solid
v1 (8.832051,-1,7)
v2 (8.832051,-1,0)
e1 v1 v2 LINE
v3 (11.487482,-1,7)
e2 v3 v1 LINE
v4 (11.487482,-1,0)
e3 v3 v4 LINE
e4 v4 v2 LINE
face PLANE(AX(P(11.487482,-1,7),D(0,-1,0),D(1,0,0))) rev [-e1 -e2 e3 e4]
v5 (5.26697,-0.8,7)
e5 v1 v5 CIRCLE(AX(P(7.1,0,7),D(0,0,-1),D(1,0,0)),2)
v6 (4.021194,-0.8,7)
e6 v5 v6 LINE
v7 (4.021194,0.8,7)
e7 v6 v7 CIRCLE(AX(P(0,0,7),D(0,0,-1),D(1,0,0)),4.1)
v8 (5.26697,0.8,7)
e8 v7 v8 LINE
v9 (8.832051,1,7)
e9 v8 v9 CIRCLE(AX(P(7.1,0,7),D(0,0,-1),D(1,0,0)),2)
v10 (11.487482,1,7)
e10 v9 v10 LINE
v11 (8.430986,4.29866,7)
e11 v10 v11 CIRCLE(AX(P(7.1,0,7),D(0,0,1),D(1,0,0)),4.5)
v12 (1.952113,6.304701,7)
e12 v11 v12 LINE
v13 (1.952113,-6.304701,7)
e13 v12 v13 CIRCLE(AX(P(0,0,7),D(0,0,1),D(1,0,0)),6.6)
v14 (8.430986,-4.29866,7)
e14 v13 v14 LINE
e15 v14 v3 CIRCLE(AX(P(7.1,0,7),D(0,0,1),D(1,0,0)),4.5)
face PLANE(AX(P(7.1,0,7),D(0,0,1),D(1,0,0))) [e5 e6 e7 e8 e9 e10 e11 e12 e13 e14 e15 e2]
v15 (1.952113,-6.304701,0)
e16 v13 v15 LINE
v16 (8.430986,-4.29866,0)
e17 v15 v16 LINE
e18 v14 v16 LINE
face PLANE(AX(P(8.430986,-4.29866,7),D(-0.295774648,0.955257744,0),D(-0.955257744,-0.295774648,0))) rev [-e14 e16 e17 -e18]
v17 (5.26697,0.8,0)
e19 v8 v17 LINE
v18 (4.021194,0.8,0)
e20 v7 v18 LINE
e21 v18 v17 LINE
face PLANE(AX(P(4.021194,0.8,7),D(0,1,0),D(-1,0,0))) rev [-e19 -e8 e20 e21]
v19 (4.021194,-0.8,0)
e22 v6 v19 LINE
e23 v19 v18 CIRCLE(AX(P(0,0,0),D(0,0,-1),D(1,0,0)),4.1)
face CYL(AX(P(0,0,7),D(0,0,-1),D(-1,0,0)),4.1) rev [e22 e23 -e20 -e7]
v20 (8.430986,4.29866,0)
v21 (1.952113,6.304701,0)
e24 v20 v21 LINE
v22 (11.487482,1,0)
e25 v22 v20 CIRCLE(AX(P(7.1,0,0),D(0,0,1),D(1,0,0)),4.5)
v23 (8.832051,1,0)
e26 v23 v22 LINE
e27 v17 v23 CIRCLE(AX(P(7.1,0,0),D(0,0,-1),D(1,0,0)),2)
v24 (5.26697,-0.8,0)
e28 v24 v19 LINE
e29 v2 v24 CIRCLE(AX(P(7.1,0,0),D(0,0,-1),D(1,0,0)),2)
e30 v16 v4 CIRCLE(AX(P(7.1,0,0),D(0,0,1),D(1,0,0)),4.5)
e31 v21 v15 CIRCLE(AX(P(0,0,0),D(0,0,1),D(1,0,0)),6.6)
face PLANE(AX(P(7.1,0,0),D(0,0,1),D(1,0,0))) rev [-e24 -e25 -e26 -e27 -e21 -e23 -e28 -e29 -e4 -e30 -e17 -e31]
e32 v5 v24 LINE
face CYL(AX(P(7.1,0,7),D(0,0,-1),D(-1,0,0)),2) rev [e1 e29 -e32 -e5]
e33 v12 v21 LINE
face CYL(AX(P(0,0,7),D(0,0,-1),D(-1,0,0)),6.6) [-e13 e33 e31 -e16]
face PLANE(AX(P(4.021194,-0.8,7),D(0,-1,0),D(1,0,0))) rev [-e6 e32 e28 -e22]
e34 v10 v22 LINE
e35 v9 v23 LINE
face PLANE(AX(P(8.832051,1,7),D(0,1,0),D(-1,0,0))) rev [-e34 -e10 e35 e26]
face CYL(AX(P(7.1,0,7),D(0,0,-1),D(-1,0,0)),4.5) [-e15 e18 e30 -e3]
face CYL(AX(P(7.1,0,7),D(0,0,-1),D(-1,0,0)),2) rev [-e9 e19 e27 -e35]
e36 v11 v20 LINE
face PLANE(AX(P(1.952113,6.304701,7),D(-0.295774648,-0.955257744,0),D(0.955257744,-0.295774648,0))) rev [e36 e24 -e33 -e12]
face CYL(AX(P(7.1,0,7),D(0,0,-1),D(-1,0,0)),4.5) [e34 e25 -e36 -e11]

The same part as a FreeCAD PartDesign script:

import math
import FreeCAD as App
import Part
import Sketcher

V = App.Vector
Q = App.Units.Quantity

doc = App.newDocument("Part")
body = doc.addObject("PartDesign::Body", "Body")

# Sketch on XY plane
sketch1 = body.newObject("Sketcher::SketchObject", "Sketch")
sketch1.AttachmentSupport = (doc.getObject("XY_Plane"), [""])
sketch1.MapMode = "FlatFace"
sketch1.addGeometry(Part.LineSegment(V(8.4, 4.3, 0), V(2, 6.3, 0)), False)
sketch1.addGeometry(Part.ArcOfCircle(Part.Circle(V(0, 0, 0), V(0, 0, 1), 6.6), math.radians(73), math.radians(287)), False)
sketch1.addGeometry(Part.LineSegment(V(2, -6.3, 0), V(8.4, -4.3, 0)), False)
sketch1.addGeometry(Part.ArcOfCircle(Part.Circle(V(7.1, 0, 0), V(0, 0, 1), 4.5), math.radians(-73), math.radians(-13)), False)
sketch1.addGeometry(Part.LineSegment(V(11.5, -1, 0), V(8.8, -1, 0)), False)
sketch1.addGeometry(Part.ArcOfCircle(Part.Circle(V(7.1, 0, 0), V(0, 0, 1), 2), math.radians(-156), math.radians(-30)), False)
sketch1.addGeometry(Part.LineSegment(V(5.3, -0.8, 0), V(4, -0.8, 0)), False)
sketch1.addGeometry(Part.ArcOfCircle(Part.Circle(V(0, 0, 0), V(0, 0, 1), 4.1), math.radians(11), math.radians(349)), False)
sketch1.addGeometry(Part.LineSegment(V(4, 0.8, 0), V(5.3, 0.8, 0)), False)
sketch1.addGeometry(Part.ArcOfCircle(Part.Circle(V(7.1, 0, 0), V(0, 0, 1), 2), math.radians(30), math.radians(156)), False)
sketch1.addGeometry(Part.LineSegment(V(8.8, 1, 0), V(11.5, 1, 0)), False)
sketch1.addGeometry(Part.ArcOfCircle(Part.Circle(V(7.1, 0, 0), V(0, 0, 1), 4.5), math.radians(13), math.radians(73)), False)
sketch1.addConstraint(Sketcher.Constraint("Tangent", 0, 2, 1, 1))
sketch1.addConstraint(Sketcher.Constraint("Tangent", 1, 2, 2, 1))
sketch1.addConstraint(Sketcher.Constraint("Tangent", 2, 2, 3, 1))
sketch1.addConstraint(Sketcher.Constraint("Coincident", 3, 2, 4, 1))
sketch1.addConstraint(Sketcher.Constraint("Coincident", 4, 2, 5, 2))
sketch1.addConstraint(Sketcher.Constraint("Coincident", 5, 1, 6, 1))
sketch1.addConstraint(Sketcher.Constraint("Coincident", 6, 2, 7, 2))
sketch1.addConstraint(Sketcher.Constraint("Coincident", 7, 1, 8, 1))
sketch1.addConstraint(Sketcher.Constraint("Coincident", 8, 2, 9, 2))
sketch1.addConstraint(Sketcher.Constraint("Coincident", 9, 1, 10, 1))
sketch1.addConstraint(Sketcher.Constraint("Coincident", 10, 2, 11, 1))
sketch1.addConstraint(Sketcher.Constraint("Tangent", 11, 2, 0, 1))
sketch1.addConstraint(Sketcher.Constraint("Horizontal", 4))
sketch1.addConstraint(Sketcher.Constraint("Horizontal", 6))
sketch1.addConstraint(Sketcher.Constraint("Horizontal", 8))
sketch1.addConstraint(Sketcher.Constraint("Horizontal", 10))
sketch1.addConstraint(Sketcher.Constraint("Coincident", 1, 3, -1, 1))
sketch1.addConstraint(Sketcher.Constraint("Coincident", 7, 3, -1, 1))
sketch1.addConstraint(Sketcher.Constraint("Coincident", 5, 3, 3, 3))
sketch1.addConstraint(Sketcher.Constraint("Coincident", 9, 3, 3, 3))
sketch1.addConstraint(Sketcher.Constraint("Coincident", 11, 3, 3, 3))
sketch1.addConstraint(Sketcher.Constraint("Equal", 5, 9))
sketch1.addConstraint(Sketcher.Constraint("Equal", 3, 11))
sketch1.addConstraint(Sketcher.Constraint("Symmetric", 5, 1, 8, 2, -1))
sketch1.addConstraint(Sketcher.Constraint("Vertical", 4, 2, 9, 1))
sketch1.addConstraint(Sketcher.Constraint("Radius", 5, Q("2 mm")))
sketch1.addConstraint(Sketcher.Constraint("Radius", 1, Q("6.6 mm")))
sketch1.addConstraint(Sketcher.Constraint("Radius", 3, Q("4.5 mm")))
sketch1.addConstraint(Sketcher.Constraint("Radius", 7, Q("4.1 mm")))
sketch1.addConstraint(Sketcher.Constraint("DistanceY", 3, 2, -1, 1, Q("1 mm")))
sketch1.addConstraint(Sketcher.Constraint("DistanceX", -1, 1, 3, 3, Q("7.1 mm")))
sketch1.addConstraint(Sketcher.Constraint("DistanceY", 5, 1, -1, 1, Q("0.8 mm")))
pad1 = body.newObject("PartDesign::Pad", "Pad")
pad1.Profile = sketch1
pad1.Length = 7

doc.recompute()
